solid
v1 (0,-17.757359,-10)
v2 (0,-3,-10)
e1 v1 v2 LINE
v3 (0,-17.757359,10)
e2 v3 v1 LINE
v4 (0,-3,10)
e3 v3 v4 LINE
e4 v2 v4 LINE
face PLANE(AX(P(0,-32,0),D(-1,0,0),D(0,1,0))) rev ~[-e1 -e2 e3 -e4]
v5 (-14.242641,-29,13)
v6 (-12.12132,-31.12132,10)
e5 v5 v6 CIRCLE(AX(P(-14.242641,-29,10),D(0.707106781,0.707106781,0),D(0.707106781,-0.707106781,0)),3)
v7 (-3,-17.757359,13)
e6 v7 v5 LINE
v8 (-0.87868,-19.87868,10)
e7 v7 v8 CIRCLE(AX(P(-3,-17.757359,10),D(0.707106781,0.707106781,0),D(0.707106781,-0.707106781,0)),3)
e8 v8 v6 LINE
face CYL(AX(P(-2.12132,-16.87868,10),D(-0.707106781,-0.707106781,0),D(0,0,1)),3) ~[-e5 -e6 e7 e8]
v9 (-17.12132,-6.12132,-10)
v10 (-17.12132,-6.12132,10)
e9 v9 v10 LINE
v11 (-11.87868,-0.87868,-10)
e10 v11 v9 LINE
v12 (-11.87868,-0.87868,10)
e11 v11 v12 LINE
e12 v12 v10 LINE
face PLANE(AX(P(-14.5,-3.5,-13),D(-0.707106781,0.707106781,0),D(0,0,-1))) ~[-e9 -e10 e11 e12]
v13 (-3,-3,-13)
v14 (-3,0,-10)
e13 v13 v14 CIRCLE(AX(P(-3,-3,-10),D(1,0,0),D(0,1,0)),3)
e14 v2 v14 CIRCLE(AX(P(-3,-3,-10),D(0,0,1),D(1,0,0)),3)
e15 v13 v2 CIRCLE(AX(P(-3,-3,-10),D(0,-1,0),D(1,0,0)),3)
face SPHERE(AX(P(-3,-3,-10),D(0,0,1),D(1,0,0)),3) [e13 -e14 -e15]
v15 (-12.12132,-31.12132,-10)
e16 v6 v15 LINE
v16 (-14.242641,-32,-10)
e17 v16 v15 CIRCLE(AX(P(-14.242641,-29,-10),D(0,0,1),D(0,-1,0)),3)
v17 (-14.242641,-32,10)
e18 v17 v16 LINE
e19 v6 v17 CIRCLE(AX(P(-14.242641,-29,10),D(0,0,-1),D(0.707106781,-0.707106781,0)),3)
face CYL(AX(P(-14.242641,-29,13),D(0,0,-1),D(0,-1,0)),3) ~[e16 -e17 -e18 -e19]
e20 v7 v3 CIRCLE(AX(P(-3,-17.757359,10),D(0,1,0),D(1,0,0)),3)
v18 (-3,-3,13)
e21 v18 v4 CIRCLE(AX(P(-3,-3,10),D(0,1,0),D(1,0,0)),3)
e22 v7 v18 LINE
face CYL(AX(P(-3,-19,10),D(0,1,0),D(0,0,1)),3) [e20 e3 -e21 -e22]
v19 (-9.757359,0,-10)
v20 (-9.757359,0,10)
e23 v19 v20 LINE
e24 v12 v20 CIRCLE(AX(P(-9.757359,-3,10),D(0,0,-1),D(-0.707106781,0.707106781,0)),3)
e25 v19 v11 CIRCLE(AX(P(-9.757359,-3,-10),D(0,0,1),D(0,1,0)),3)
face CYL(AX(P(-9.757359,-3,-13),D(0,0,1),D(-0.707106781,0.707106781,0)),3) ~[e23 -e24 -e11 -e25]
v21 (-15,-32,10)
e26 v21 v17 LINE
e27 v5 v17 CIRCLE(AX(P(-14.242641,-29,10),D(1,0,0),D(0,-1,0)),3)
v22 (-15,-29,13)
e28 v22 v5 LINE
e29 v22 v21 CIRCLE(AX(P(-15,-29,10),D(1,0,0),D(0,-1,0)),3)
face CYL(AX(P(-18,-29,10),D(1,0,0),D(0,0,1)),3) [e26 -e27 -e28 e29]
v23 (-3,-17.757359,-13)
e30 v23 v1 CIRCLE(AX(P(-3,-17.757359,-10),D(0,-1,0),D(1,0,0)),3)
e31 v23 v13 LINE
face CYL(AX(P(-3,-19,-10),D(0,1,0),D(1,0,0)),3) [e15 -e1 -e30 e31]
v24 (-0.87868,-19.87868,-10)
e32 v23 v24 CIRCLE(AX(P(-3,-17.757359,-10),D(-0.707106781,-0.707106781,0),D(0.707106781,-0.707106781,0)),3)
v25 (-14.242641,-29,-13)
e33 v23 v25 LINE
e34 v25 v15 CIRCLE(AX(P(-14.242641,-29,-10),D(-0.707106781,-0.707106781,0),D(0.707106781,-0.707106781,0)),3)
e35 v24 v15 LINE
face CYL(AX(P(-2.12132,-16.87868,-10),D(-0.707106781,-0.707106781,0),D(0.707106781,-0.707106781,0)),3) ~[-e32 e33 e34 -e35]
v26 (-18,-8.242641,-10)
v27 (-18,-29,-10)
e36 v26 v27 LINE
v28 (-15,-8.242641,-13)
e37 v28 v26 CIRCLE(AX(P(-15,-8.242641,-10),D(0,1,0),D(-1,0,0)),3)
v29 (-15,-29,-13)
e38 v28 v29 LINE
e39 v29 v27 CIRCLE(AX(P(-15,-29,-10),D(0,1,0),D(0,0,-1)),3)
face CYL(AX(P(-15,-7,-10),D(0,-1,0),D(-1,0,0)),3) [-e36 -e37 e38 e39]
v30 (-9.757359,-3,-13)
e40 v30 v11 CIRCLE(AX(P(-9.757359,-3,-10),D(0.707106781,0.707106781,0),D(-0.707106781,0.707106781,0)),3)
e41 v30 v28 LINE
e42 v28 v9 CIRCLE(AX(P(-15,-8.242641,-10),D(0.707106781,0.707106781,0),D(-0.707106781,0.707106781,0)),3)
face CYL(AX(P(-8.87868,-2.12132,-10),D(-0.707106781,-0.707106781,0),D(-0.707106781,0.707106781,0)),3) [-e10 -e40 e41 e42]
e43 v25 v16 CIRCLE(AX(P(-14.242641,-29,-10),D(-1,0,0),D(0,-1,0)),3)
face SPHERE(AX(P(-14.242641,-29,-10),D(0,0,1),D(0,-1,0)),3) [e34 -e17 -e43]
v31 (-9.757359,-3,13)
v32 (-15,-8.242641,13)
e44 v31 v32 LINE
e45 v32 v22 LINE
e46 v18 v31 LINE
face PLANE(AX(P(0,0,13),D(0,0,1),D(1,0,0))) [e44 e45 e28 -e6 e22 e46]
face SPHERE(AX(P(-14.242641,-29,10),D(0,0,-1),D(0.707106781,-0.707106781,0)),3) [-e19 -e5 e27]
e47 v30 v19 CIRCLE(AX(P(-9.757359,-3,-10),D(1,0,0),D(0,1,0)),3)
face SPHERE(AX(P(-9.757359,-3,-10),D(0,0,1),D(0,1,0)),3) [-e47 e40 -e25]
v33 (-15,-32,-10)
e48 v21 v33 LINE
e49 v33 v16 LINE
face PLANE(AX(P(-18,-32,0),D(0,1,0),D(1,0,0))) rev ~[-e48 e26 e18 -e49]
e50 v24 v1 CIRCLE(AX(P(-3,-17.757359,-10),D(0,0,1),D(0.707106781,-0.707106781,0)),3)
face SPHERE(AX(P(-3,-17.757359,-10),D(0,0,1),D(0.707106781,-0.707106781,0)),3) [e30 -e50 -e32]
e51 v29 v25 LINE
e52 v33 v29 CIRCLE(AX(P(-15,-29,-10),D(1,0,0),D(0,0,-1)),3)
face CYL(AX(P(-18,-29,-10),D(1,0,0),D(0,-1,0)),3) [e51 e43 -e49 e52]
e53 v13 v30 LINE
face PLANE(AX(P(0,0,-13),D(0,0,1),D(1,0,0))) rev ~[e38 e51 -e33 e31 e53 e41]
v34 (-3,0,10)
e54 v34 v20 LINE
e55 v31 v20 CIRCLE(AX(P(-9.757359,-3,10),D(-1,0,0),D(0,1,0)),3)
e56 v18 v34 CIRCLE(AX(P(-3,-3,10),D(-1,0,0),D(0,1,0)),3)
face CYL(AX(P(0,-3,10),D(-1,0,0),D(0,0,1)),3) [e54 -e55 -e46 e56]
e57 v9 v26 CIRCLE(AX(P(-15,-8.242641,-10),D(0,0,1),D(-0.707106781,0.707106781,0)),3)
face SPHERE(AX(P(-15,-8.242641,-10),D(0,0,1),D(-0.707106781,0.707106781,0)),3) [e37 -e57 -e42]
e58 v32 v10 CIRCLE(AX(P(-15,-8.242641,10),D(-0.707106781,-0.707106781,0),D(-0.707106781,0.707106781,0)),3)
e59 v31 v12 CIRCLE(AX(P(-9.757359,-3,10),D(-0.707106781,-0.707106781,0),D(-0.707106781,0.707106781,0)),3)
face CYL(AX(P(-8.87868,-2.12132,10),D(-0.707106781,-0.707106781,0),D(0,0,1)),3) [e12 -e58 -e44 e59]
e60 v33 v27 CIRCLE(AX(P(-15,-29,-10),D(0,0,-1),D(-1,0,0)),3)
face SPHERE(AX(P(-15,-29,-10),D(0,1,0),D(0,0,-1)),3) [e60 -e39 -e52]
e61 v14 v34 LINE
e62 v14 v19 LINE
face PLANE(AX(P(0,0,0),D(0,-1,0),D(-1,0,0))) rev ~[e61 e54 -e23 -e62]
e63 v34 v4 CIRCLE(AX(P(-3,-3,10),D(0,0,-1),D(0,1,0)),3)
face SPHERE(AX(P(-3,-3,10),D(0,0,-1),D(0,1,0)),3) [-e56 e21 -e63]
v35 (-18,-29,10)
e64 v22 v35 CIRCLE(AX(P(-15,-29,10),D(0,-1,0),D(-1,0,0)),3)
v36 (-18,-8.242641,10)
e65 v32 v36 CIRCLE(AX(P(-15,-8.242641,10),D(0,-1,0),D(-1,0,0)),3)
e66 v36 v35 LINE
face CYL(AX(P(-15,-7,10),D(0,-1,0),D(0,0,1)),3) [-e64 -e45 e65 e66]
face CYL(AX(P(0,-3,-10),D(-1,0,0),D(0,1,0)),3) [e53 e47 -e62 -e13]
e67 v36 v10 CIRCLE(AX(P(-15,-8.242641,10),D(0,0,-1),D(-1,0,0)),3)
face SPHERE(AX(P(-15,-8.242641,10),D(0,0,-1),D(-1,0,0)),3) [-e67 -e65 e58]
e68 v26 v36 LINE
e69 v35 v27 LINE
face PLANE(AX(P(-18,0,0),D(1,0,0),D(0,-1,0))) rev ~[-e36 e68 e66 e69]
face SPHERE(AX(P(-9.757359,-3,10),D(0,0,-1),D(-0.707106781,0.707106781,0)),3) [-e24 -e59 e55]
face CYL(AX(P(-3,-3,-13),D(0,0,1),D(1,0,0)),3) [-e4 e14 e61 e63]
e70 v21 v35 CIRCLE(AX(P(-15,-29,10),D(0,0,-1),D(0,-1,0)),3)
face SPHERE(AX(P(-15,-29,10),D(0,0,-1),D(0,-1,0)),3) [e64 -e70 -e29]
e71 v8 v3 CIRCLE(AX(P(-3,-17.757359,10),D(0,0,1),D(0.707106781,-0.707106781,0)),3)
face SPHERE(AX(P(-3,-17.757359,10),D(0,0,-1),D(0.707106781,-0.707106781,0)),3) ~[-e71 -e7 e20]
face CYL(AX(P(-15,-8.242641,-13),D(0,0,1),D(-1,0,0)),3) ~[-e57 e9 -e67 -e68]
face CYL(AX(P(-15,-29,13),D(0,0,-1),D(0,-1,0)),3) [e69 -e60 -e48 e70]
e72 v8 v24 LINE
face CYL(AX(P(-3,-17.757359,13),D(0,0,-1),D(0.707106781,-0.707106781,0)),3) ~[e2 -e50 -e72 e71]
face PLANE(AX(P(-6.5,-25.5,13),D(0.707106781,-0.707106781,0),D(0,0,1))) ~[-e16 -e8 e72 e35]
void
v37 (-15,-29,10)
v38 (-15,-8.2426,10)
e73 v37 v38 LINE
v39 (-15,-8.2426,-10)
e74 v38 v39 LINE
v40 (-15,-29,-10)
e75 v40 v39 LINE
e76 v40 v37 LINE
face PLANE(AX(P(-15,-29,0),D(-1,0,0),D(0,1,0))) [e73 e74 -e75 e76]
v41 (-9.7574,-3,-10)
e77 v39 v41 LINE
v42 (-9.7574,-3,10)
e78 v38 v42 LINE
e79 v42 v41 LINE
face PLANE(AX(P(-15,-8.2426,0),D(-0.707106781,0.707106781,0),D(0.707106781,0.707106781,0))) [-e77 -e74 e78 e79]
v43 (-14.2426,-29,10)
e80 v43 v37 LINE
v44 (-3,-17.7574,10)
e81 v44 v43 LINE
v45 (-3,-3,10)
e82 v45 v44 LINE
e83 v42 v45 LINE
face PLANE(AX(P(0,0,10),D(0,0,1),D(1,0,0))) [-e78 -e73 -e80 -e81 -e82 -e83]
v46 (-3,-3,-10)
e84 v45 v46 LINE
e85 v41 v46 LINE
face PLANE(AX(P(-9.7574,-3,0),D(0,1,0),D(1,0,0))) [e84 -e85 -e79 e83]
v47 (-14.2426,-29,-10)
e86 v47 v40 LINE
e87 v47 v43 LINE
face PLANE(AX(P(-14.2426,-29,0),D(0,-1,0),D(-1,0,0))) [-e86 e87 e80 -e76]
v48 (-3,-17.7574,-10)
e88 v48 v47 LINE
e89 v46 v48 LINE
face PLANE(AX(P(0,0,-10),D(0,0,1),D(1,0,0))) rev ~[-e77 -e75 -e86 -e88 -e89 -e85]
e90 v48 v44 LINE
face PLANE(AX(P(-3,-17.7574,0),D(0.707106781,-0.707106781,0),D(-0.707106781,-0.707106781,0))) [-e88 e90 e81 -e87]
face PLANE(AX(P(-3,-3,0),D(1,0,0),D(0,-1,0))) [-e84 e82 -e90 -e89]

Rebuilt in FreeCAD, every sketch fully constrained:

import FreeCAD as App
import Part
import Sketcher

V = App.Vector
Q = App.Units.Quantity


def edges_at(feature, points):
    """Names of the edges that pass closest to the given points."""
    edges = feature.Shape.Edges
    near = lambda p: min(range(len(edges)), key=lambda i: edges[i].distToShape(Part.Vertex(*p))[0])
    return sorted({f"Edge{near(p) + 1}" for p in points})


def add_polygon(sketch, points):
    """Adds a closed chain of lines whose ends are joined by coincident constraints."""
    first, n = sketch.GeometryCount, len(points)
    for a, b in zip(points, points[1:] + points[:1]):
        sketch.addGeometry(Part.LineSegment(App.Vector(*a, 0), App.Vector(*b, 0)), False)
    for i in range(n):
        sketch.addConstraint(Sketcher.Constraint("Coincident", first + i, 2, first + (i + 1) % n, 1))

doc = App.newDocument("Part")
params = doc.addObject("Spreadsheet::Sheet", "Params")
for row, (alias, value) in enumerate([
    ("sketch1_width", "18 mm"),
    ("sketch1_height", "32 mm"),
    ("pad1_length", "26 mm"),
    ("chamfer_size", "7 mm"),
    ("chamfer2_size", "13 mm"),
    ("fillet_radius", "3 mm"),
    ("pocket1_length", "20 mm"),
], start=1):
    params.set(f"A{row}", alias)
    params.set(f"B{row}", "=" + value)
    params.setAlias(f"B{row}", alias)

body = doc.addObject("PartDesign::Body", "Body")

sketch1 = body.newObject("Sketcher::SketchObject", "Sketch")
sketch1.AttachmentSupport = (doc.getObject("XY_Plane"), [""])
sketch1.MapMode = "FlatFace"
add_polygon(sketch1, [(0, -32), (0, 0), (-18, 0), (-18, -32)])
sketch1.addConstraint([
    Sketcher.Constraint("Vertical", 0),
    Sketcher.Constraint("Horizontal", 1),
    Sketcher.Constraint("Vertical", 2),
    Sketcher.Constraint("Horizontal", 3),
    Sketcher.Constraint("Coincident", 0, 2, -1, 1),
    Sketcher.Constraint("DistanceX", 1, 2, 1, 1, 18.0),
    Sketcher.Constraint("DistanceY", 0, 1, 0, 2, 32.0),
])
sketch1.setExpression("Constraints[9]", "Params.sketch1_width")
sketch1.setExpression("Constraints[10]", "Params.sketch1_height")
pad1 = body.newObject("PartDesign::Pad", "Pad")
pad1.Profile = sketch1
pad1.setExpression("Length", "Params.pad1_length")
pad1.Midplane = True
doc.recompute()

chamfer = body.newObject("PartDesign::Chamfer", "Chamfer")
chamfer.Base = (pad1, edges_at(pad1, [(-18, 0, 0)]))
chamfer.setExpression("Size", "Params.chamfer_size")
doc.recompute()

chamfer2 = body.newObject("PartDesign::Chamfer", "Chamfer001")
chamfer2.Base = (chamfer, edges_at(chamfer, [(0, -32, 0)]))
chamfer2.setExpression("Size", "Params.chamfer2_size")
doc.recompute()

fillet = body.newObject("PartDesign::Fillet", "Fillet")
fillet.Base = (chamfer2, ["Edge1"])
fillet.UseAllEdges = True
fillet.setExpression("Radius", "Params.fillet_radius")

sketch2 = body.newObject("Sketcher::SketchObject", "Sketch001")
sketch2.AttachmentSupport = (doc.getObject("XY_Plane"), [""])
sketch2.MapMode = "FlatFace"
add_polygon(sketch2, [(-15, -8.2426), (-15, -29), (-14.2426, -29), (-3, -17.7574), (-3, -3), (-9.7574, -3)])
sketch2.addConstraint([
    Sketcher.Constraint("Vertical", 0),
    Sketcher.Constraint("Horizontal", 1),
    Sketcher.Constraint("Vertical", 3),
    Sketcher.Constraint("Horizontal", 4),
    Sketcher.Constraint("Parallel", 2, 5),
    Sketcher.Constraint("Angle", 2, Q("45 deg")),
    Sketcher.Constraint("DistanceX", 0, 2, -1, 1, 15.0),
    Sketcher.Constraint("DistanceY", 0, 2, -1, 1, 29.0),
    Sketcher.Constraint("DistanceX", 2, 2, -1, 1, 3.0),
    Sketcher.Constraint("DistanceY", 3, 2, -1, 1, 3.0),
    Sketcher.Constraint("DistanceX", 1, 1, 1, 2, 0.7574),
    Sketcher.Constraint("DistanceX", 4, 2, 4, 1, 6.7574),
])
pocket1 = body.newObject("PartDesign::Pocket", "Pocket")
pocket1.Profile = sketch2
pocket1.setExpression("Length", "Params.pocket1_length")
pocket1.Midplane = True

doc.recompute()
